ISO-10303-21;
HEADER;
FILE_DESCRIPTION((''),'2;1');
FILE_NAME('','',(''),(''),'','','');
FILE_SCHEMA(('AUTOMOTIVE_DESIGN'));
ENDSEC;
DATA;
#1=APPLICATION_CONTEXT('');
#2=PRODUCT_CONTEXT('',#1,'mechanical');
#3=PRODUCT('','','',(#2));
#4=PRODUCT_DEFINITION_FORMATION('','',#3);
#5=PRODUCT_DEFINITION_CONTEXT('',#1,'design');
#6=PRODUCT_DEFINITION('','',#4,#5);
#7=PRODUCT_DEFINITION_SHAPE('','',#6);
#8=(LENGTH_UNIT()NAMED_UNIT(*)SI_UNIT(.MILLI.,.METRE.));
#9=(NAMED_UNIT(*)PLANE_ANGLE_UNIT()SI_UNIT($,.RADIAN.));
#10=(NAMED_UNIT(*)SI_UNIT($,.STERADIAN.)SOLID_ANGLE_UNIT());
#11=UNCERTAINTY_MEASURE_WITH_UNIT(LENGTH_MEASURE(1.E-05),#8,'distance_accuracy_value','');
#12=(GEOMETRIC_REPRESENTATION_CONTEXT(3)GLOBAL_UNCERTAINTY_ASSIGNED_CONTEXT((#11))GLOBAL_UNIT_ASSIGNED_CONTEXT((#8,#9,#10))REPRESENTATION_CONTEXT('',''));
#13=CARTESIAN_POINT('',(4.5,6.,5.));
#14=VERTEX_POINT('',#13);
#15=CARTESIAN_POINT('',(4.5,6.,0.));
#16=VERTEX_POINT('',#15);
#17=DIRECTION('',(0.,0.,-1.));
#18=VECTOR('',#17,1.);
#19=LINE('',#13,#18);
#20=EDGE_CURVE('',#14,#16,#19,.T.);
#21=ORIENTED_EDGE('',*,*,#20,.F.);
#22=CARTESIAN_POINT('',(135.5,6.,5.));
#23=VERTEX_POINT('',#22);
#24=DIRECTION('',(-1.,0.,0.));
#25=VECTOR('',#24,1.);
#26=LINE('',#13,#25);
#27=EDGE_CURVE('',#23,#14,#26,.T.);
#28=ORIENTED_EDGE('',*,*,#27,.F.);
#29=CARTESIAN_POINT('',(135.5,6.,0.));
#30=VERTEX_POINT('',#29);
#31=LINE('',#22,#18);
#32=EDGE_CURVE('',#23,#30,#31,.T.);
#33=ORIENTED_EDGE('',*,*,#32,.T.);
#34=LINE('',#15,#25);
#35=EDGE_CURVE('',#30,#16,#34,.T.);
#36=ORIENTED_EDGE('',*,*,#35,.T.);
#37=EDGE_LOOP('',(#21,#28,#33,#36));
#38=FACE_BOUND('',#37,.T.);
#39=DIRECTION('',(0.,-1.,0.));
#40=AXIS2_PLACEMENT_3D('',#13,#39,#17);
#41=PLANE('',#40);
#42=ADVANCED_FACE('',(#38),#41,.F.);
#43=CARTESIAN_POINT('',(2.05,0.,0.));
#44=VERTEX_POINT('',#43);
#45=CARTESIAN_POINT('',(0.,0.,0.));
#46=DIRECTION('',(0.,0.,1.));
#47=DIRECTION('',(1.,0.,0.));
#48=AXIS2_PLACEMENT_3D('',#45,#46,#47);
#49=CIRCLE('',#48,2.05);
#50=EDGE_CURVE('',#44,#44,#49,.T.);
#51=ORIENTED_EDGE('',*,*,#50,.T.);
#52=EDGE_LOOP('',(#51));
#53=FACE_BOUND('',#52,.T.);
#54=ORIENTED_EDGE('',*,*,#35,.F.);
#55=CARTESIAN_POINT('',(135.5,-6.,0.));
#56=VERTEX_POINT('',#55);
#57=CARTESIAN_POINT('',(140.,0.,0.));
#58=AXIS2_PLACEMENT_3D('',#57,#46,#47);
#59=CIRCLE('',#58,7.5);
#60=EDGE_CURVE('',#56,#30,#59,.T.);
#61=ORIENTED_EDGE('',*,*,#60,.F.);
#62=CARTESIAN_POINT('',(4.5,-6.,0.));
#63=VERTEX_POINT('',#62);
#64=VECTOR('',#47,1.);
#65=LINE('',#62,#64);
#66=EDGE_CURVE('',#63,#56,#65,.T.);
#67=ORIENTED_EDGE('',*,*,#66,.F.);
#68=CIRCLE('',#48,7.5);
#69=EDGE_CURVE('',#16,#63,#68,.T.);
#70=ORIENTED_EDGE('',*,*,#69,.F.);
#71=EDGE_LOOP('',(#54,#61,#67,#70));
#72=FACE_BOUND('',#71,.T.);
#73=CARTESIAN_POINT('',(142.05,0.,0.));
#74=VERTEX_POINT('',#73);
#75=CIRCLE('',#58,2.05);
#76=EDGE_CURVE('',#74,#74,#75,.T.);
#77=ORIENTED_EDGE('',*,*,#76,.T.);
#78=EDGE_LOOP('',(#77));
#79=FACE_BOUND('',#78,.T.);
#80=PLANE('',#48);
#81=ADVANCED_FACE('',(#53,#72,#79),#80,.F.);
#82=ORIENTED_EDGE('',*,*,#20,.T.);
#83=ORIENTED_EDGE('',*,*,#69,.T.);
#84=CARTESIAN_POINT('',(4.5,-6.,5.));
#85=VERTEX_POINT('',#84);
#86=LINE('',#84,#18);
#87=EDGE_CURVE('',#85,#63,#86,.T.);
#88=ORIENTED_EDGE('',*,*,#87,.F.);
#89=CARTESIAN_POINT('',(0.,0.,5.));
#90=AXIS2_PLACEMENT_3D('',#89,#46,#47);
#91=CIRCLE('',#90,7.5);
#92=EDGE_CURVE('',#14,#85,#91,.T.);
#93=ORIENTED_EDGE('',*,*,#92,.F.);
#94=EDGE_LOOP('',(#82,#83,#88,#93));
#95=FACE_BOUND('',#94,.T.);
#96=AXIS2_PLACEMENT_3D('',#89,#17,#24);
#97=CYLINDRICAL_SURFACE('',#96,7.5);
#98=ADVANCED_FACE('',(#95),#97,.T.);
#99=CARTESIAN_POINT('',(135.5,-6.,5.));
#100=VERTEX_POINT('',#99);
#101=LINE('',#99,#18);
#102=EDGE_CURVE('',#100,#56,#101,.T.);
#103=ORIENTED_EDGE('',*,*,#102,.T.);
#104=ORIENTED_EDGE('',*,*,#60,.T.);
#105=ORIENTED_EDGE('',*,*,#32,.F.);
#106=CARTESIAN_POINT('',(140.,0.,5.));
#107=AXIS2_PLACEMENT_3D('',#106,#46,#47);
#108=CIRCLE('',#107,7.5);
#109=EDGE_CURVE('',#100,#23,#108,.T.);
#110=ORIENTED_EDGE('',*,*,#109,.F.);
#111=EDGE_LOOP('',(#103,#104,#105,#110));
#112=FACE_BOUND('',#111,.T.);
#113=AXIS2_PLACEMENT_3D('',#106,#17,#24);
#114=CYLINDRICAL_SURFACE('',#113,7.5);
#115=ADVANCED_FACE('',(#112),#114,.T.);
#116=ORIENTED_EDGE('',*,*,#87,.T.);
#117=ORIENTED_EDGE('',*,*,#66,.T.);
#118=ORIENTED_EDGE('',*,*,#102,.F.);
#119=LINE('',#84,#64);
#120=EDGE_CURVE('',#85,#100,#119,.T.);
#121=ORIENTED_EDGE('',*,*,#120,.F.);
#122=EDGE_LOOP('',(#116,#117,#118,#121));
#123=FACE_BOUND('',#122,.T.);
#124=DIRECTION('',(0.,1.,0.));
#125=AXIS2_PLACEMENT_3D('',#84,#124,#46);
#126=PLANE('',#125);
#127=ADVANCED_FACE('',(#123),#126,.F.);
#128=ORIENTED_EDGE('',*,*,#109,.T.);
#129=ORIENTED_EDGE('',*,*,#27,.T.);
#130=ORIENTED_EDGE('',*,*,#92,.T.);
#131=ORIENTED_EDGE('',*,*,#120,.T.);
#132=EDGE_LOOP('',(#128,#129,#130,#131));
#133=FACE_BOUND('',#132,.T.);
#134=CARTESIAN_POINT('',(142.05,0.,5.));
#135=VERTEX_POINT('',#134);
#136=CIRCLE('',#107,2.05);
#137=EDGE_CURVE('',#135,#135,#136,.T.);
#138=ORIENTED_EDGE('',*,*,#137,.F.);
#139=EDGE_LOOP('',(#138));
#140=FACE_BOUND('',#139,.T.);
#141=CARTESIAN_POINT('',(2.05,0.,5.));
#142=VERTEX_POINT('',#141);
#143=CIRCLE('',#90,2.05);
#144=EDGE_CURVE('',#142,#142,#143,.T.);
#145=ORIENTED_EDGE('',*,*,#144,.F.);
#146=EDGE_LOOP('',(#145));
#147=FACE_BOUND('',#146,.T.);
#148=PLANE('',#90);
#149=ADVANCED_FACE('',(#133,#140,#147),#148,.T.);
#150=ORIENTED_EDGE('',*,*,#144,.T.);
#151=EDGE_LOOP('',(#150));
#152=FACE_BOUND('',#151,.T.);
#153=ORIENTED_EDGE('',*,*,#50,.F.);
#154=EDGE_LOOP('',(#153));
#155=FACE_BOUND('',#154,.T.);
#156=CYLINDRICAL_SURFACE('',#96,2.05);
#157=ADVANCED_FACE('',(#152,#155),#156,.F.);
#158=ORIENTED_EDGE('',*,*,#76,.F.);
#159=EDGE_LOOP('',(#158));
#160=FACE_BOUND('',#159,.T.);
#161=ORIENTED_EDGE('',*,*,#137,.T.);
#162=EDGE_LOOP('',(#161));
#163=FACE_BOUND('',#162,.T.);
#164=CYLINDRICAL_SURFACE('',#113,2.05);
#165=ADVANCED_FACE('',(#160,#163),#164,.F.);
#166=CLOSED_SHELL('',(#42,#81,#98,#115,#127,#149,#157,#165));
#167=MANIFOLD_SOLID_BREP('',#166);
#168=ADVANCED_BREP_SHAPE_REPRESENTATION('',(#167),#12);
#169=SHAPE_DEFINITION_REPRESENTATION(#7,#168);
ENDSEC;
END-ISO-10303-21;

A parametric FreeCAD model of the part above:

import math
import FreeCAD as App
import Part
import Sketcher

V = App.Vector

doc = App.newDocument("Part")
body = doc.addObject("PartDesign::Body", "Body")

sketch1 = body.newObject("Sketcher::SketchObject", "Sketch")
sketch1.AttachmentSupport = (doc.getObject("XY_Plane"), [""])
sketch1.MapMode = "FlatFace"
sketch1.addGeometry([
    Part.LineSegment(V(4.5, -6, 0), V(135.5, -6, 0)),
    Part.ArcOfCircle(Part.Circle(V(140, 0, 0), V(0, 0, 1), 7.5), math.radians(-127), math.radians(127)),
    Part.LineSegment(V(135.5, 6, 0), V(4.5, 6, 0)),
    Part.ArcOfCircle(Part.Circle(V(0, 0, 0), V(0, 0, 1), 7.5), math.radians(53), math.radians(307)),
    Part.Circle(V(0, 0, 0), V(0, 0, 1), 2),
    Part.Circle(V(140, 0, 0), V(0, 0, 1), 2),
], False)
sketch1.addConstraint([
    Sketcher.Constraint("Coincident", 0, 2, 1, 1),
    Sketcher.Constraint("Coincident", 1, 2, 2, 1),
    Sketcher.Constraint("Coincident", 2, 2, 3, 1),
    Sketcher.Constraint("Coincident", 3, 2, 0, 1),
    Sketcher.Constraint("Horizontal", 0),
    Sketcher.Constraint("Horizontal", 2),
    Sketcher.Constraint("Coincident", 3, 3, -1, 1),
    Sketcher.Constraint("Coincident", 4, 3, -1, 1),
    Sketcher.Constraint("Coincident", 5, 3, 1, 3),
    Sketcher.Constraint("Equal", 1, 3),
    Sketcher.Constraint("Equal", 4, 5),
    Sketcher.Constraint("Symmetric", 0, 2, 1, 2, -1),
    Sketcher.Constraint("Diameter", 4, 4.1),
    Sketcher.Constraint("Radius", 1, 7.5),
    Sketcher.Constraint("DistanceX", 0, 1, 0, 2, 131.0),
    Sketcher.Constraint("DistanceX", -1, 1, 1, 3, 140.0),
])
pad1 = body.newObject("PartDesign::Pad", "Pad")
pad1.Profile = sketch1
pad1.Length = 5

doc.recompute()
